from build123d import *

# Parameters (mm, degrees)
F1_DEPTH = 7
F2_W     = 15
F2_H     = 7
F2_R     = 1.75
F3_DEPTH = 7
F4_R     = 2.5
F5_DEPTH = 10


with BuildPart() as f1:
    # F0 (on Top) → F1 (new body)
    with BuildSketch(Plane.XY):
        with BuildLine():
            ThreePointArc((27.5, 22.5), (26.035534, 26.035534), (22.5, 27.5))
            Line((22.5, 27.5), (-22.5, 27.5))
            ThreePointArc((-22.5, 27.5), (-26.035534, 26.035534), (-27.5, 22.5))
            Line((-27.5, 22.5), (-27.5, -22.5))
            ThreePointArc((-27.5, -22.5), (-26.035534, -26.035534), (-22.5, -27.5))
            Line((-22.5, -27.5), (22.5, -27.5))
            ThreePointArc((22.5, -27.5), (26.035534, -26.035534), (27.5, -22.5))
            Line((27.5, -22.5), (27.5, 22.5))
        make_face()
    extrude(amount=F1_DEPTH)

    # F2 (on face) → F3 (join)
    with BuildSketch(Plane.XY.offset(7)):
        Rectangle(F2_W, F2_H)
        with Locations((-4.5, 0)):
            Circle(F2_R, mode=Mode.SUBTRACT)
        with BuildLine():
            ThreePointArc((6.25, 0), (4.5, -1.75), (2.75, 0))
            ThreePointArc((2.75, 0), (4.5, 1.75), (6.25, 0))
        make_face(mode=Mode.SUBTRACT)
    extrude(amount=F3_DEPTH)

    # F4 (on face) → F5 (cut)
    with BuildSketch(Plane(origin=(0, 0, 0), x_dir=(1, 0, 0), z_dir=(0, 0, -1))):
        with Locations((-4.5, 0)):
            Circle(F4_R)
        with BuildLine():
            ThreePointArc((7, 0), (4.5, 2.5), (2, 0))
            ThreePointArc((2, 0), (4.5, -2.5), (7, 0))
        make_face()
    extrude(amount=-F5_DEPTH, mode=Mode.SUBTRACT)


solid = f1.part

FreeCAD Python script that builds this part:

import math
import FreeCAD as App
import Part
import Sketcher
from FreeCAD import Vector

doc = App.newDocument("Part")
body = doc.addObject("PartDesign::Body", "Body")

sketch1 = body.newObject("Sketcher::SketchObject", "Sketch")
sketch1.AttachmentSupport = (doc.getObject("XY_Plane"), [""])
sketch1.MapMode = "FlatFace"
sketch1.addGeometry([
    Part.ArcOfCircle(Part.Circle(Vector(22.5, 22.5, 0), Vector(0, 0, 1), 5), math.radians(0), math.radians(90)),
    Part.LineSegment(Vector(22.5, 27.5, 0), Vector(-22.5, 27.5, 0)),
    Part.ArcOfCircle(Part.Circle(Vector(-22.5, 22.5, 0), Vector(0, 0, 1), 5), math.radians(90), math.radians(180)),
    Part.LineSegment(Vector(-27.5, 22.5, 0), Vector(-27.5, -22.5, 0)),
    Part.ArcOfCircle(Part.Circle(Vector(-22.5, -22.5, 0), Vector(0, 0, 1), 5), math.radians(180), math.radians(270)),
    Part.LineSegment(Vector(-22.5, -27.5, 0), Vector(22.5, -27.5, 0)),
    Part.ArcOfCircle(Part.Circle(Vector(22.5, -22.5, 0), Vector(0, 0, 1), 5), math.radians(-90), math.radians(0)),
    Part.LineSegment(Vector(27.5, -22.5, 0), Vector(27.5, 22.5, 0)),
], False)
sketch1.addConstraint([
    Sketcher.Constraint("Tangent", 0, 2, 1, 1),
    Sketcher.Constraint("Tangent", 1, 2, 2, 1),
    Sketcher.Constraint("Tangent", 2, 2, 3, 1),
    Sketcher.Constraint("Tangent", 3, 2, 4, 1),
    Sketcher.Constraint("Tangent", 4, 2, 5, 1),
    Sketcher.Constraint("Tangent", 5, 2, 6, 1),
    Sketcher.Constraint("Tangent", 6, 2, 7, 1),
    Sketcher.Constraint("Tangent", 7, 2, 0, 1),
    Sketcher.Constraint("Horizontal", 1),
    Sketcher.Constraint("Vertical", 3),
    Sketcher.Constraint("Horizontal", 5),
    Sketcher.Constraint("Vertical", 7),
    Sketcher.Constraint("Equal", 0, 2),
    Sketcher.Constraint("Equal", 2, 4),
    Sketcher.Constraint("Equal", 4, 6),
    Sketcher.Constraint("Symmetric", 0, 3, 4, 3, -1, 1),
    Sketcher.Constraint("Equal", 5, 3),
    Sketcher.Constraint("Radius", 0, 5.0),
    Sketcher.Constraint("DistanceX", 1, 2, 1, 1, 45.0),
])
pad1 = body.newObject("PartDesign::Pad", "Pad")
pad1.Profile = sketch1
pad1.Length = 7

sketch2 = body.newObject("Sketcher::SketchObject", "Sketch001")
sketch2.AttachmentSupport = (doc.getObject("XY_Plane"), [""])
sketch2.MapMode = "FlatFace"
sketch2.AttachmentOffset = App.Placement(Vector(0, 0, 7), App.Rotation())
sketch2.addGeometry([
    Part.LineSegment(Vector(-7.5, 3.5, 0), Vector(-7.5, -3.5, 0)),
    Part.LineSegment(Vector(-7.5, -3.5, 0), Vector(7.5, -3.5, 0)),
    Part.LineSegment(Vector(7.5, -3.5, 0), Vector(7.5, 3.5, 0)),
    Part.LineSegment(Vector(7.5, 3.5, 0), Vector(-7.5, 3.5, 0)),
    Part.Circle(Vector(-4.5, 0, 0), Vector(0, 0, 1), 1.8),
    Part.Circle(Vector(4.5, 0, 0), Vector(0, 0, 1), 1.8),
], False)
sketch2.addConstraint([
    Sketcher.Constraint("Coincident", 0, 2, 1, 1),
    Sketcher.Constraint("Coincident", 1, 2, 2, 1),
    Sketcher.Constraint("Coincident", 2, 2, 3, 1),
    Sketcher.Constraint("Coincident", 3, 2, 0, 1),
    Sketcher.Constraint("Vertical", 0),
    Sketcher.Constraint("Horizontal", 1),
    Sketcher.Constraint("Vertical", 2),
    Sketcher.Constraint("Horizontal", 3),
    Sketcher.Constraint("Equal", 4, 5),
    Sketcher.Constraint("Symmetric", 4, 3, 5, 3, -1, 1),
    Sketcher.Constraint("Symmetric", 0, 2, 2, 2, -1, 1),
    Sketcher.Constraint("PointOnObject", 4, 3, -1),
    Sketcher.Constraint("Diameter", 4, 3.5),
    Sketcher.Constraint("DistanceX", 1, 1, 1, 2, 15.0),
    Sketcher.Constraint("DistanceY", 0, 2, 0, 1, 7.0),
    Sketcher.Constraint("DistanceX", 4, 3, 5, 3, 9.0),
])
pad2 = body.newObject("PartDesign::Pad", "Pad001")
pad2.Profile = sketch2
pad2.Length = 7

sketch3 = body.newObject("Sketcher::SketchObject", "Sketch002")
sketch3.AttachmentSupport = (doc.getObject("XY_Plane"), [""])
sketch3.MapMode = "FlatFace"
sketch3.addGeometry([
    Part.Circle(Vector(-4.5, 0, 0), Vector(0, 0, 1), 2.5),
    Part.Circle(Vector(4.5, 0, 0), Vector(0, 0, 1), 2.5),
], False)
sketch3.addConstraint([
    Sketcher.Constraint("Equal", 0, 1),
    Sketcher.Constraint("Symmetric", 0, 3, 1, 3, -1, 1),
    Sketcher.Constraint("PointOnObject", 0, 3, -1),
    Sketcher.Constraint("Diameter", 0, 5.0),
    Sketcher.Constraint("DistanceX", 0, 3, 1, 3, 9.0),
])
pocket1 = body.newObject("PartDesign::Pocket", "Pocket")
pocket1.Profile = sketch3
pocket1.Length = 10
pocket1.Reversed = True

doc.recompute()
